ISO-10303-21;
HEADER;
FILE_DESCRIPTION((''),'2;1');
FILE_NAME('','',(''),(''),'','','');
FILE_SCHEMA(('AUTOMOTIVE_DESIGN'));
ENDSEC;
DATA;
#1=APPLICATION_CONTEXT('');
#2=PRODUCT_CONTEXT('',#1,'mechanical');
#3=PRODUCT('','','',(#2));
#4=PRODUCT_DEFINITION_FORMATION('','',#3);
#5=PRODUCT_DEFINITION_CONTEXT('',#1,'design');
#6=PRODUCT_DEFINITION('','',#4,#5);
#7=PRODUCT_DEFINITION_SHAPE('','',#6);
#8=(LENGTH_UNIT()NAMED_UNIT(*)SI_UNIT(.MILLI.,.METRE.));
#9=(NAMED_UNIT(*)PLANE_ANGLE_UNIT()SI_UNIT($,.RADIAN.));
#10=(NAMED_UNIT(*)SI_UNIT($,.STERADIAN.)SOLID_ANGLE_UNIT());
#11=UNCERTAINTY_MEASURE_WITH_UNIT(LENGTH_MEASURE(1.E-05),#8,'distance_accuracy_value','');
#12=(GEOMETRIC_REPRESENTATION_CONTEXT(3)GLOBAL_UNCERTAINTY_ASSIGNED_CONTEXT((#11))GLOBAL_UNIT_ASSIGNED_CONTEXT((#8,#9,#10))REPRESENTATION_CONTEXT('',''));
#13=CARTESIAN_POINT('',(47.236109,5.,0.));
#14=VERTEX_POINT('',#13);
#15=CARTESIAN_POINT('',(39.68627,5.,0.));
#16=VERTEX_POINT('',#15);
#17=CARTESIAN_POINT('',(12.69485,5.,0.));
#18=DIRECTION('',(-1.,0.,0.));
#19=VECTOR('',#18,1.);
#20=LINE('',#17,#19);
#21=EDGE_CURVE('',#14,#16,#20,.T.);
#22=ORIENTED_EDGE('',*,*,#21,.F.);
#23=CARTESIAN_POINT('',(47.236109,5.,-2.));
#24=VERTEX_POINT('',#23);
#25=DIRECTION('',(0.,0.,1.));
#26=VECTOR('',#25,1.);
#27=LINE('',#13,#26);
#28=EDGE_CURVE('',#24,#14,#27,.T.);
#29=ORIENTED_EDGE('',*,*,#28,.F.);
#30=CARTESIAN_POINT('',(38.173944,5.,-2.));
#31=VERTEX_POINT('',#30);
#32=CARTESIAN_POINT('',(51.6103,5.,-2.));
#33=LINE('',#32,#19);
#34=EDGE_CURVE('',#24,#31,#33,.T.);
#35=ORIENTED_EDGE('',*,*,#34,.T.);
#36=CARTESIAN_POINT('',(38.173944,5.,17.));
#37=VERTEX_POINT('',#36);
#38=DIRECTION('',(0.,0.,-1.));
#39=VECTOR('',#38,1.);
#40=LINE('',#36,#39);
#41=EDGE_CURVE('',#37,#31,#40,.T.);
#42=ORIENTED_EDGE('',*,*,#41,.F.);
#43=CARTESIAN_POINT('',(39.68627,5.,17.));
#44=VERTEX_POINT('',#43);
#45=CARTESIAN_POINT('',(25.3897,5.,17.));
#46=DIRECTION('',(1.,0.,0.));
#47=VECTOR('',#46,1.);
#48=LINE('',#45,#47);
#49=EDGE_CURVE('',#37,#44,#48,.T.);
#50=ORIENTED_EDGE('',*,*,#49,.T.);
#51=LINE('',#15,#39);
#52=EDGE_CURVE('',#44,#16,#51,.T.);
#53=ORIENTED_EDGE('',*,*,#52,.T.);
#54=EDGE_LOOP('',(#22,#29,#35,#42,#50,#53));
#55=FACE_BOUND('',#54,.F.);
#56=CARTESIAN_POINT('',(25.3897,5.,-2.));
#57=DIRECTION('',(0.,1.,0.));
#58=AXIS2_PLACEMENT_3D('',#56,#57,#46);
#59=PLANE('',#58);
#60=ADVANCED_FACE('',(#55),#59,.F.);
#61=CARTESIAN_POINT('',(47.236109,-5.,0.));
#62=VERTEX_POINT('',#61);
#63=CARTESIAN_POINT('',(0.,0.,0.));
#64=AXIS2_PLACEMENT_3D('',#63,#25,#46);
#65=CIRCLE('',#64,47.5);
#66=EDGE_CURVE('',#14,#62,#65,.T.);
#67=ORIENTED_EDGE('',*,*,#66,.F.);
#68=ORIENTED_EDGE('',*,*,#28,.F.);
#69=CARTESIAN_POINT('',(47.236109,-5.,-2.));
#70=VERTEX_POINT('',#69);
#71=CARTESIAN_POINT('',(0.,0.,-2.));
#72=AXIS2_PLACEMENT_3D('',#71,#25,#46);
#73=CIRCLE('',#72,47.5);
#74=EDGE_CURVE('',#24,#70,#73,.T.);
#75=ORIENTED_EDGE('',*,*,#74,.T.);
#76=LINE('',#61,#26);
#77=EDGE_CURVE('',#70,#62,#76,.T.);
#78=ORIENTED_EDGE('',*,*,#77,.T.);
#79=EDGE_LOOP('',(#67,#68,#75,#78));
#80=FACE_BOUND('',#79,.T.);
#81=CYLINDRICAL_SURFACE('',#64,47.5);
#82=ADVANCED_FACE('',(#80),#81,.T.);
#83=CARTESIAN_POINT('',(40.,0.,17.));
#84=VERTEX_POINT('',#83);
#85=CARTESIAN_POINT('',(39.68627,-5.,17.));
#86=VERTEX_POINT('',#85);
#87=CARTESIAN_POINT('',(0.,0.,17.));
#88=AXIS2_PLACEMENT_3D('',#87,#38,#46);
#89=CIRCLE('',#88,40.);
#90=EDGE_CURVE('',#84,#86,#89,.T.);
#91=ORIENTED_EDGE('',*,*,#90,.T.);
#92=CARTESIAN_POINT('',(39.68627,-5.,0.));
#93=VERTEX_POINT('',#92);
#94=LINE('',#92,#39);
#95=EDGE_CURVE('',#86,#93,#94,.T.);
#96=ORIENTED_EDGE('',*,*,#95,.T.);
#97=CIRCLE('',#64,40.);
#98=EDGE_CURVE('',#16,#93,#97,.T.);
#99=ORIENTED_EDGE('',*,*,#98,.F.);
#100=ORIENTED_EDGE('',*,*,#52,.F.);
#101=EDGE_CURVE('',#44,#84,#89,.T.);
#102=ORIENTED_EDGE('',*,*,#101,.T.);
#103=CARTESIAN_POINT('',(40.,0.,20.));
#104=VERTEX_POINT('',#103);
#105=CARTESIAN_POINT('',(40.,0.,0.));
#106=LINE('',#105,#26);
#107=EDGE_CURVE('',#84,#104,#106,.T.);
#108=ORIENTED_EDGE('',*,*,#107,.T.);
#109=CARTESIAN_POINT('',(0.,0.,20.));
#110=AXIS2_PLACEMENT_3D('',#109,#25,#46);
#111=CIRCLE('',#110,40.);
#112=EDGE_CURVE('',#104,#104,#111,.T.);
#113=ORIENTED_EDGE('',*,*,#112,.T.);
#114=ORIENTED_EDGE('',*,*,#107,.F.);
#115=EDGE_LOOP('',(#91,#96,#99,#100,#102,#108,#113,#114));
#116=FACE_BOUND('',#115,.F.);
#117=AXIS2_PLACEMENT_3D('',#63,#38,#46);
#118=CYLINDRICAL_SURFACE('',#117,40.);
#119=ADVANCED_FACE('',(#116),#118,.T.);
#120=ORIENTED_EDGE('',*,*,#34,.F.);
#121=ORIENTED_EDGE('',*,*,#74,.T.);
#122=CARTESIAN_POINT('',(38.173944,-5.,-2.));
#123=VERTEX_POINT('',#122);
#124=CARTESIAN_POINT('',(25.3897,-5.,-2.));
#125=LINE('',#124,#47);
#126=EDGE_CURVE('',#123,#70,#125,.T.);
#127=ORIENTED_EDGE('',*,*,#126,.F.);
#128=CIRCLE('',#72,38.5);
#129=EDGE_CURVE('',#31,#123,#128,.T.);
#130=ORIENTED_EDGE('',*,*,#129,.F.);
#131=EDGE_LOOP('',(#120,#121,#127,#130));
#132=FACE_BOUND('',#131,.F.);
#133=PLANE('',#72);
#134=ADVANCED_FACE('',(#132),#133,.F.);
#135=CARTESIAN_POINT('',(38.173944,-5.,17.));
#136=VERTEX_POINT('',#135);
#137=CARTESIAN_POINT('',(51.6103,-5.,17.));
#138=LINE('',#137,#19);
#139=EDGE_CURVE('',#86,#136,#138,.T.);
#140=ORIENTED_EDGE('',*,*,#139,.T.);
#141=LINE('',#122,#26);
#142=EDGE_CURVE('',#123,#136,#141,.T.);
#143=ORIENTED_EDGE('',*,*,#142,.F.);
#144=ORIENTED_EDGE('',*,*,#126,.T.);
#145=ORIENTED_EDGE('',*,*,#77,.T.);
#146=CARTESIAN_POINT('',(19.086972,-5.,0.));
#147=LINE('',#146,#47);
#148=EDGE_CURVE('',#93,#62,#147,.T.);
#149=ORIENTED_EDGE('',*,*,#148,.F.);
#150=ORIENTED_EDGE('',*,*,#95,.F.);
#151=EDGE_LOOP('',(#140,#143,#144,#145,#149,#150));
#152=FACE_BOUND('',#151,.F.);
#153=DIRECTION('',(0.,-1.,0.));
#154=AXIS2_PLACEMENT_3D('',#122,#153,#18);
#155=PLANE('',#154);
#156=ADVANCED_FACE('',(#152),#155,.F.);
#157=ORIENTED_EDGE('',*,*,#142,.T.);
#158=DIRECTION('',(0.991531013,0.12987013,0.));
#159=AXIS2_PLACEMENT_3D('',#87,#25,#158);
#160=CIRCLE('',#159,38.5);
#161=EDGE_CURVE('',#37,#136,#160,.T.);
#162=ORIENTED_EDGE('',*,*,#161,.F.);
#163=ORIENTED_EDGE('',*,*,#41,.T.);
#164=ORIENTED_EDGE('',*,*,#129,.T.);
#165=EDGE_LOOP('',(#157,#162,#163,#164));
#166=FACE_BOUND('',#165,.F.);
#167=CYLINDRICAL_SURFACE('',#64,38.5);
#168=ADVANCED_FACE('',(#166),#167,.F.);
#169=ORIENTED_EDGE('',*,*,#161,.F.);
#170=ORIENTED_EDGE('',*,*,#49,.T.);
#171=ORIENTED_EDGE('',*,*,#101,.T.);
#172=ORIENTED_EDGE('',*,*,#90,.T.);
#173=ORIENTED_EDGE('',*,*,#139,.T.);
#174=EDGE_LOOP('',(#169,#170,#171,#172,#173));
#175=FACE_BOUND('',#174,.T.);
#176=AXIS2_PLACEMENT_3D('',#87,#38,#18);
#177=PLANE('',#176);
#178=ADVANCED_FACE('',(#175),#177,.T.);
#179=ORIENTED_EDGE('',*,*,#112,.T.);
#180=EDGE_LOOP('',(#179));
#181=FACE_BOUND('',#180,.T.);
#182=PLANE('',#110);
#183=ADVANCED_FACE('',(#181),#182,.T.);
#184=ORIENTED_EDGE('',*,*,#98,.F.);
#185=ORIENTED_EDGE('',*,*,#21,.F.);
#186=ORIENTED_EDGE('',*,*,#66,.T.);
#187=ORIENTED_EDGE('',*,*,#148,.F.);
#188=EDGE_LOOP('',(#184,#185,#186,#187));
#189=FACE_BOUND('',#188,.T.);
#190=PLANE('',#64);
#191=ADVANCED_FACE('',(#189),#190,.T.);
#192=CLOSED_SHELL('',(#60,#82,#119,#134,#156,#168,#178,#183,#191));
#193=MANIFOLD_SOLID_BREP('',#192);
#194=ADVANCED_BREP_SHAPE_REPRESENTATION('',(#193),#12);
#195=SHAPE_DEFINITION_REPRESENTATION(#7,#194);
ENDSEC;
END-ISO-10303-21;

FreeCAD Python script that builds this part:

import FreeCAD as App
import Part
import Sketcher
Q = App.Units.Quantity

doc = App.newDocument("Part")
body = doc.addObject("PartDesign::Body", "Body")

sketch1 = body.newObject("Sketcher::SketchObject", "Sketch")
sketch1.AttachmentSupport = (doc.getObject("XY_Plane"), [""])
sketch1.MapMode = "FlatFace"
sketch1.addGeometry(Part.Circle(App.Vector(0, 0, 0), App.Vector(0, 0, 1), 40), False)
sketch1.addConstraint(Sketcher.Constraint("Coincident", 0, 3, -1, 1))
sketch1.addConstraint(Sketcher.Constraint("Diameter", 0, Q("80 mm")))
pad1 = body.newObject("PartDesign::Pad", "Pad")
pad1.Profile = sketch1
pad1.Length = 20

sketch2 = body.newObject("Sketcher::SketchObject", "Sketch001")
sketch2.AttachmentSupport = (doc.getObject("XY_Plane"), [""])
sketch2.MapMode = "FlatFace"
sketch2.addGeometry(Part.Circle(App.Vector(0, 0, 0), App.Vector(0, 0, 1), 38), False)
sketch2.addConstraint(Sketcher.Constraint("Coincident", 0, 3, -1, 1))
sketch2.addConstraint(Sketcher.Constraint("Diameter", 0, Q("77 mm")))
pocket1 = body.newObject("PartDesign::Pocket", "Pocket")
pocket1.Profile = sketch2
pocket1.Length = 17
pocket1.Reversed = True

sketch3 = body.newObject("Sketcher::SketchObject", "Sketch002")
sketch3.AttachmentSupport = (doc.getObject("XY_Plane"), [""])
sketch3.MapMode = "FlatFace"
sketch3.addGeometry(Part.Circle(App.Vector(0, 0, 0), App.Vector(0, 0, 1), 48), False)
sketch3.addGeometry(Part.Circle(App.Vector(0, 0, 0), App.Vector(0, 0, 1), 38), False)
sketch3.addConstraint(Sketcher.Constraint("Coincident", 0, 3, -1, 1))
sketch3.addConstraint(Sketcher.Constraint("Coincident", 1, 3, -1, 1))
sketch3.addConstraint(Sketcher.Constraint("Diameter", 0, Q("95 mm")))
sketch3.addConstraint(Sketcher.Constraint("Diameter", 1, Q("77 mm")))
pad2 = body.newObject("PartDesign::Pad", "Pad001")
pad2.Profile = sketch3
pad2.Length = 2
pad2.Reversed = True

sketch4 = body.newObject("Sketcher::SketchObject", "Sketch003")
sketch4.AttachmentSupport = (doc.getObject("XY_Plane"), [""])
sketch4.MapMode = "FlatFace"
sketch4.AttachmentOffset = App.Placement(App.Vector(0, 0, -2), App.Rotation())
sketch4.addGeometry(Part.LineSegment(App.Vector(25, -5, 0), App.Vector(25, 5, 0)), False)
sketch4.addGeometry(Part.LineSegment(App.Vector(25, 5, 0), App.Vector(52, 5, 0)), False)
sketch4.addGeometry(Part.LineSegment(App.Vector(52, 5, 0), App.Vector(52, -5, 0)), False)
sketch4.addGeometry(Part.LineSegment(App.Vector(52, -5, 0), App.Vector(25, -5, 0)), False)
sketch4.addConstraint(Sketcher.Constraint("Coincident", 0, 2, 1, 1))
sketch4.addConstraint(Sketcher.Constraint("Coincident", 1, 2, 2, 1))
sketch4.addConstraint(Sketcher.Constraint("Coincident", 2, 2, 3, 1))
sketch4.addConstraint(Sketcher.Constraint("Coincident", 3, 2, 0, 1))
sketch4.addConstraint(Sketcher.Constraint("Vertical", 0))
sketch4.addConstraint(Sketcher.Constraint("Horizontal", 1))
sketch4.addConstraint(Sketcher.Constraint("Vertical", 2))
sketch4.addConstraint(Sketcher.Constraint("Horizontal", 3))
sketch4.addConstraint(Sketcher.Constraint("DistanceY", 0, 1, 0, 2, Q("10 mm")))
sketch4.addConstraint(Sketcher.Constraint("DistanceX", 1, 1, 1, 2, Q("26.2206 mm")))
sketch4.addConstraint(Sketcher.Constraint("DistanceY", -1, 1, 0, 2, Q("5 mm")))
sketch4.addConstraint(Sketcher.Constraint("DistanceX", -1, 1, 0, 2, Q("25.3897 mm")))
pocket2 = body.newObject("PartDesign::Pocket", "Pocket001")
pocket2.Profile = sketch4
pocket2.Length = 19
pocket2.Reversed = True

doc.recompute()
